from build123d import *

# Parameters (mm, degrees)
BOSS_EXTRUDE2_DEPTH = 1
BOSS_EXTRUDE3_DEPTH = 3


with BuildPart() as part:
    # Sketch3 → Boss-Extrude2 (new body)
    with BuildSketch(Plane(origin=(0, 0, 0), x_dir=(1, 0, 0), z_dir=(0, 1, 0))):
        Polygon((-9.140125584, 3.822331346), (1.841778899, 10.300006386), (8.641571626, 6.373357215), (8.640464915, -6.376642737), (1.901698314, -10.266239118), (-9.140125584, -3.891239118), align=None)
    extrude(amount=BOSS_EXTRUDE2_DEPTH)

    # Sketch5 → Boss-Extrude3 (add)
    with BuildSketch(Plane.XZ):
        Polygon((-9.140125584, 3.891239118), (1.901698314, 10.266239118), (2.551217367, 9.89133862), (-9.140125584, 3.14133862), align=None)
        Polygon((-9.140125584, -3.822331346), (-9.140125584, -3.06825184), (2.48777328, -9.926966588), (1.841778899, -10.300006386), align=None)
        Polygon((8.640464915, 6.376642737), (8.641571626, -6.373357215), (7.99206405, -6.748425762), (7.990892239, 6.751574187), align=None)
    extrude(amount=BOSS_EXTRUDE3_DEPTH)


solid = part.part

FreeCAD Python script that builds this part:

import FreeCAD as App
import Part
import Sketcher
from FreeCAD import Vector
Q = App.Units.Quantity

doc = App.newDocument("Part")
body = doc.addObject("PartDesign::Body", "Body")

sketch1 = body.newObject("Sketcher::SketchObject", "Sketch")
sketch1.AttachmentSupport = (doc.getObject("XZ_Plane"), [""])
sketch1.MapMode = "FlatFace"
sketch1.addGeometry(Part.LineSegment(Vector(1.841779, -10.300006, 0), Vector(-9.140126, -3.822331, 0)), False)
sketch1.addGeometry(Part.LineSegment(Vector(-9.140126, -3.822331, 0), Vector(-9.140126, 3.891239, 0)), False)
sketch1.addGeometry(Part.LineSegment(Vector(-9.140126, 3.891239, 0), Vector(1.901698, 10.266239, 0)), False)
sketch1.addGeometry(Part.LineSegment(Vector(1.901698, 10.266239, 0), Vector(8.640465, 6.376643, 0)), False)
sketch1.addGeometry(Part.LineSegment(Vector(8.640465, 6.376643, 0), Vector(8.641572, -6.373357, 0)), False)
sketch1.addGeometry(Part.LineSegment(Vector(8.641572, -6.373357, 0), Vector(1.841779, -10.300006, 0)), False)
sketch1.addConstraint(Sketcher.Constraint("Coincident", 0, 2, 1, 1))
sketch1.addConstraint(Sketcher.Constraint("Coincident", 1, 2, 2, 1))
sketch1.addConstraint(Sketcher.Constraint("Coincident", 2, 2, 3, 1))
sketch1.addConstraint(Sketcher.Constraint("Coincident", 3, 2, 4, 1))
sketch1.addConstraint(Sketcher.Constraint("Coincident", 4, 2, 5, 1))
sketch1.addConstraint(Sketcher.Constraint("Coincident", 5, 2, 0, 1))
sketch1.addConstraint(Sketcher.Constraint("Vertical", 1))
sketch1.addConstraint(Sketcher.Constraint("Equal", 0, 2))
sketch1.addConstraint(Sketcher.Constraint("Equal", 2, 4))
sketch1.addConstraint(Sketcher.Constraint("Angle", 2, Q("30 deg")))
sketch1.addConstraint(Sketcher.Constraint("Distance", 0, Q("12.75 mm")))
sketch1.addConstraint(Sketcher.Constraint("DistanceY", 1, 1, 1, 2, Q("7.71357 mm")))
sketch1.addConstraint(Sketcher.Constraint("DistanceX", -1, 1, 2, 2, Q("1.901698 mm")))
sketch1.addConstraint(Sketcher.Constraint("Distance", 3, Q("7.780741 mm")))
sketch1.addConstraint(Sketcher.Constraint("DistanceY", 0, 2, -1, 1, Q("3.822331 mm")))
sketch1.addConstraint(Sketcher.Constraint("DistanceX", -1, 1, 4, 2, Q("8.641572 mm")))
sketch1.addConstraint(Sketcher.Constraint("DistanceX", -1, 1, 5, 2, Q("1.841779 mm")))
sketch1.addConstraint(Sketcher.Constraint("DistanceX", 1, 2, 3, 2, Q("17.78059 mm")))
pad1 = body.newObject("PartDesign::Pad", "Pad")
pad1.Profile = sketch1
pad1.Length = 1
pad1.Reversed = True

sketch2 = body.newObject("Sketcher::SketchObject", "Sketch001")
sketch2.AttachmentSupport = (doc.getObject("XZ_Plane"), [""])
sketch2.MapMode = "FlatFace"
sketch2.addGeometry(Part.LineSegment(Vector(1.901698, 10.266239, 0), Vector(-9.140126, 3.891239, 0)), False)
sketch2.addGeometry(Part.LineSegment(Vector(-9.140126, 3.891239, 0), Vector(-9.140126, 3.141339, 0)), False)
sketch2.addGeometry(Part.LineSegment(Vector(-9.140126, 3.141339, 0), Vector(2.551217, 9.891339, 0)), False)
sketch2.addGeometry(Part.LineSegment(Vector(2.551217, 9.891339, 0), Vector(1.901698, 10.266239, 0)), False)
sketch2.addGeometry(Part.LineSegment(Vector(-9.140126, -3.068252, 0), Vector(-9.140126, -3.822331, 0)), False)
sketch2.addGeometry(Part.LineSegment(Vector(-9.140126, -3.822331, 0), Vector(1.841779, -10.300006, 0)), False)
sketch2.addGeometry(Part.LineSegment(Vector(1.841779, -10.300006, 0), Vector(2.487773, -9.926967, 0)), False)
sketch2.addGeometry(Part.LineSegment(Vector(2.487773, -9.926967, 0), Vector(-9.140126, -3.068252, 0)), False)
sketch2.addGeometry(Part.LineSegment(Vector(8.641572, -6.373357, 0), Vector(8.640465, 6.376643, 0)), False)
sketch2.addGeometry(Part.LineSegment(Vector(8.640465, 6.376643, 0), Vector(7.990892, 6.751574, 0)), False)
sketch2.addGeometry(Part.LineSegment(Vector(7.990892, 6.751574, 0), Vector(7.992064, -6.748426, 0)), False)
sketch2.addGeometry(Part.LineSegment(Vector(7.992064, -6.748426, 0), Vector(8.641572, -6.373357, 0)), False)
sketch2.addConstraint(Sketcher.Constraint("Coincident", 0, 2, 1, 1))
sketch2.addConstraint(Sketcher.Constraint("Coincident", 1, 2, 2, 1))
sketch2.addConstraint(Sketcher.Constraint("Coincident", 2, 2, 3, 1))
sketch2.addConstraint(Sketcher.Constraint("Coincident", 3, 2, 0, 1))
sketch2.addConstraint(Sketcher.Constraint("Coincident", 4, 2, 5, 1))
sketch2.addConstraint(Sketcher.Constraint("Coincident", 5, 2, 6, 1))
sketch2.addConstraint(Sketcher.Constraint("Coincident", 6, 2, 7, 1))
sketch2.addConstraint(Sketcher.Constraint("Coincident", 7, 2, 4, 1))
sketch2.addConstraint(Sketcher.Constraint("Coincident", 8, 2, 9, 1))
sketch2.addConstraint(Sketcher.Constraint("Coincident", 9, 2, 10, 1))
sketch2.addConstraint(Sketcher.Constraint("Coincident", 10, 2, 11, 1))
sketch2.addConstraint(Sketcher.Constraint("Coincident", 11, 2, 8, 1))
sketch2.addConstraint(Sketcher.Constraint("Vertical", 1))
sketch2.addConstraint(Sketcher.Constraint("Vertical", 4))
sketch2.addConstraint(Sketcher.Constraint("Parallel", 0, 2))
sketch2.addConstraint(Sketcher.Constraint("Parallel", 5, 7))
sketch2.addConstraint(Sketcher.Constraint("Parallel", 3, 9))
sketch2.addConstraint(Sketcher.Constraint("Parallel", 8, 10))
sketch2.addConstraint(Sketcher.Constraint("Parallel", 6, 11))
sketch2.addConstraint(Sketcher.Constraint("Vertical", 1, 2, 4, 2))
sketch2.addConstraint(Sketcher.Constraint("Equal", 0, 5))
sketch2.addConstraint(Sketcher.Constraint("Equal", 2, 7))
sketch2.addConstraint(Sketcher.Constraint("Equal", 5, 8))
sketch2.addConstraint(Sketcher.Constraint("Equal", 7, 10))
sketch2.addConstraint(Sketcher.Constraint("Angle", 0, Q("-150 deg")))
sketch2.addConstraint(Sketcher.Constraint("Distance", 2, Q("13.5 mm")))
sketch2.addConstraint(Sketcher.Constraint("Distance", 0, Q("12.75 mm")))
sketch2.addConstraint(Sketcher.Constraint("DistanceY", 1, 2, 1, 1, Q("0.7499 mm")))
sketch2.addConstraint(Sketcher.Constraint("DistanceY", 4, 2, 4, 1, Q("0.75408 mm")))
sketch2.addConstraint(Sketcher.Constraint("DistanceX", -1, 1, 3, 2, Q("1.901698 mm")))
sketch2.addConstraint(Sketcher.Constraint("DistanceX", 4, 2, 6, 2, Q("11.627899 mm")))
sketch2.addConstraint(Sketcher.Constraint("DistanceX", 10, 2, 8, 2, Q("0.648401 mm")))
sketch2.addConstraint(Sketcher.Constraint("DistanceX", 6, 2, 11, 2, Q("6.153798 mm")))
sketch2.addConstraint(Sketcher.Constraint("DistanceY", -1, 1, 0, 2, Q("3.891239 mm")))
sketch2.addConstraint(Sketcher.Constraint("DistanceY", 4, 2, -1, 1, Q("3.822331 mm")))
sketch2.addConstraint(Sketcher.Constraint("DistanceY", 6, 2, 8, 2, Q("16.303609 mm")))
pad2 = body.newObject("PartDesign::Pad", "Pad001")
pad2.Profile = sketch2
pad2.Length = 3

doc.recompute()
